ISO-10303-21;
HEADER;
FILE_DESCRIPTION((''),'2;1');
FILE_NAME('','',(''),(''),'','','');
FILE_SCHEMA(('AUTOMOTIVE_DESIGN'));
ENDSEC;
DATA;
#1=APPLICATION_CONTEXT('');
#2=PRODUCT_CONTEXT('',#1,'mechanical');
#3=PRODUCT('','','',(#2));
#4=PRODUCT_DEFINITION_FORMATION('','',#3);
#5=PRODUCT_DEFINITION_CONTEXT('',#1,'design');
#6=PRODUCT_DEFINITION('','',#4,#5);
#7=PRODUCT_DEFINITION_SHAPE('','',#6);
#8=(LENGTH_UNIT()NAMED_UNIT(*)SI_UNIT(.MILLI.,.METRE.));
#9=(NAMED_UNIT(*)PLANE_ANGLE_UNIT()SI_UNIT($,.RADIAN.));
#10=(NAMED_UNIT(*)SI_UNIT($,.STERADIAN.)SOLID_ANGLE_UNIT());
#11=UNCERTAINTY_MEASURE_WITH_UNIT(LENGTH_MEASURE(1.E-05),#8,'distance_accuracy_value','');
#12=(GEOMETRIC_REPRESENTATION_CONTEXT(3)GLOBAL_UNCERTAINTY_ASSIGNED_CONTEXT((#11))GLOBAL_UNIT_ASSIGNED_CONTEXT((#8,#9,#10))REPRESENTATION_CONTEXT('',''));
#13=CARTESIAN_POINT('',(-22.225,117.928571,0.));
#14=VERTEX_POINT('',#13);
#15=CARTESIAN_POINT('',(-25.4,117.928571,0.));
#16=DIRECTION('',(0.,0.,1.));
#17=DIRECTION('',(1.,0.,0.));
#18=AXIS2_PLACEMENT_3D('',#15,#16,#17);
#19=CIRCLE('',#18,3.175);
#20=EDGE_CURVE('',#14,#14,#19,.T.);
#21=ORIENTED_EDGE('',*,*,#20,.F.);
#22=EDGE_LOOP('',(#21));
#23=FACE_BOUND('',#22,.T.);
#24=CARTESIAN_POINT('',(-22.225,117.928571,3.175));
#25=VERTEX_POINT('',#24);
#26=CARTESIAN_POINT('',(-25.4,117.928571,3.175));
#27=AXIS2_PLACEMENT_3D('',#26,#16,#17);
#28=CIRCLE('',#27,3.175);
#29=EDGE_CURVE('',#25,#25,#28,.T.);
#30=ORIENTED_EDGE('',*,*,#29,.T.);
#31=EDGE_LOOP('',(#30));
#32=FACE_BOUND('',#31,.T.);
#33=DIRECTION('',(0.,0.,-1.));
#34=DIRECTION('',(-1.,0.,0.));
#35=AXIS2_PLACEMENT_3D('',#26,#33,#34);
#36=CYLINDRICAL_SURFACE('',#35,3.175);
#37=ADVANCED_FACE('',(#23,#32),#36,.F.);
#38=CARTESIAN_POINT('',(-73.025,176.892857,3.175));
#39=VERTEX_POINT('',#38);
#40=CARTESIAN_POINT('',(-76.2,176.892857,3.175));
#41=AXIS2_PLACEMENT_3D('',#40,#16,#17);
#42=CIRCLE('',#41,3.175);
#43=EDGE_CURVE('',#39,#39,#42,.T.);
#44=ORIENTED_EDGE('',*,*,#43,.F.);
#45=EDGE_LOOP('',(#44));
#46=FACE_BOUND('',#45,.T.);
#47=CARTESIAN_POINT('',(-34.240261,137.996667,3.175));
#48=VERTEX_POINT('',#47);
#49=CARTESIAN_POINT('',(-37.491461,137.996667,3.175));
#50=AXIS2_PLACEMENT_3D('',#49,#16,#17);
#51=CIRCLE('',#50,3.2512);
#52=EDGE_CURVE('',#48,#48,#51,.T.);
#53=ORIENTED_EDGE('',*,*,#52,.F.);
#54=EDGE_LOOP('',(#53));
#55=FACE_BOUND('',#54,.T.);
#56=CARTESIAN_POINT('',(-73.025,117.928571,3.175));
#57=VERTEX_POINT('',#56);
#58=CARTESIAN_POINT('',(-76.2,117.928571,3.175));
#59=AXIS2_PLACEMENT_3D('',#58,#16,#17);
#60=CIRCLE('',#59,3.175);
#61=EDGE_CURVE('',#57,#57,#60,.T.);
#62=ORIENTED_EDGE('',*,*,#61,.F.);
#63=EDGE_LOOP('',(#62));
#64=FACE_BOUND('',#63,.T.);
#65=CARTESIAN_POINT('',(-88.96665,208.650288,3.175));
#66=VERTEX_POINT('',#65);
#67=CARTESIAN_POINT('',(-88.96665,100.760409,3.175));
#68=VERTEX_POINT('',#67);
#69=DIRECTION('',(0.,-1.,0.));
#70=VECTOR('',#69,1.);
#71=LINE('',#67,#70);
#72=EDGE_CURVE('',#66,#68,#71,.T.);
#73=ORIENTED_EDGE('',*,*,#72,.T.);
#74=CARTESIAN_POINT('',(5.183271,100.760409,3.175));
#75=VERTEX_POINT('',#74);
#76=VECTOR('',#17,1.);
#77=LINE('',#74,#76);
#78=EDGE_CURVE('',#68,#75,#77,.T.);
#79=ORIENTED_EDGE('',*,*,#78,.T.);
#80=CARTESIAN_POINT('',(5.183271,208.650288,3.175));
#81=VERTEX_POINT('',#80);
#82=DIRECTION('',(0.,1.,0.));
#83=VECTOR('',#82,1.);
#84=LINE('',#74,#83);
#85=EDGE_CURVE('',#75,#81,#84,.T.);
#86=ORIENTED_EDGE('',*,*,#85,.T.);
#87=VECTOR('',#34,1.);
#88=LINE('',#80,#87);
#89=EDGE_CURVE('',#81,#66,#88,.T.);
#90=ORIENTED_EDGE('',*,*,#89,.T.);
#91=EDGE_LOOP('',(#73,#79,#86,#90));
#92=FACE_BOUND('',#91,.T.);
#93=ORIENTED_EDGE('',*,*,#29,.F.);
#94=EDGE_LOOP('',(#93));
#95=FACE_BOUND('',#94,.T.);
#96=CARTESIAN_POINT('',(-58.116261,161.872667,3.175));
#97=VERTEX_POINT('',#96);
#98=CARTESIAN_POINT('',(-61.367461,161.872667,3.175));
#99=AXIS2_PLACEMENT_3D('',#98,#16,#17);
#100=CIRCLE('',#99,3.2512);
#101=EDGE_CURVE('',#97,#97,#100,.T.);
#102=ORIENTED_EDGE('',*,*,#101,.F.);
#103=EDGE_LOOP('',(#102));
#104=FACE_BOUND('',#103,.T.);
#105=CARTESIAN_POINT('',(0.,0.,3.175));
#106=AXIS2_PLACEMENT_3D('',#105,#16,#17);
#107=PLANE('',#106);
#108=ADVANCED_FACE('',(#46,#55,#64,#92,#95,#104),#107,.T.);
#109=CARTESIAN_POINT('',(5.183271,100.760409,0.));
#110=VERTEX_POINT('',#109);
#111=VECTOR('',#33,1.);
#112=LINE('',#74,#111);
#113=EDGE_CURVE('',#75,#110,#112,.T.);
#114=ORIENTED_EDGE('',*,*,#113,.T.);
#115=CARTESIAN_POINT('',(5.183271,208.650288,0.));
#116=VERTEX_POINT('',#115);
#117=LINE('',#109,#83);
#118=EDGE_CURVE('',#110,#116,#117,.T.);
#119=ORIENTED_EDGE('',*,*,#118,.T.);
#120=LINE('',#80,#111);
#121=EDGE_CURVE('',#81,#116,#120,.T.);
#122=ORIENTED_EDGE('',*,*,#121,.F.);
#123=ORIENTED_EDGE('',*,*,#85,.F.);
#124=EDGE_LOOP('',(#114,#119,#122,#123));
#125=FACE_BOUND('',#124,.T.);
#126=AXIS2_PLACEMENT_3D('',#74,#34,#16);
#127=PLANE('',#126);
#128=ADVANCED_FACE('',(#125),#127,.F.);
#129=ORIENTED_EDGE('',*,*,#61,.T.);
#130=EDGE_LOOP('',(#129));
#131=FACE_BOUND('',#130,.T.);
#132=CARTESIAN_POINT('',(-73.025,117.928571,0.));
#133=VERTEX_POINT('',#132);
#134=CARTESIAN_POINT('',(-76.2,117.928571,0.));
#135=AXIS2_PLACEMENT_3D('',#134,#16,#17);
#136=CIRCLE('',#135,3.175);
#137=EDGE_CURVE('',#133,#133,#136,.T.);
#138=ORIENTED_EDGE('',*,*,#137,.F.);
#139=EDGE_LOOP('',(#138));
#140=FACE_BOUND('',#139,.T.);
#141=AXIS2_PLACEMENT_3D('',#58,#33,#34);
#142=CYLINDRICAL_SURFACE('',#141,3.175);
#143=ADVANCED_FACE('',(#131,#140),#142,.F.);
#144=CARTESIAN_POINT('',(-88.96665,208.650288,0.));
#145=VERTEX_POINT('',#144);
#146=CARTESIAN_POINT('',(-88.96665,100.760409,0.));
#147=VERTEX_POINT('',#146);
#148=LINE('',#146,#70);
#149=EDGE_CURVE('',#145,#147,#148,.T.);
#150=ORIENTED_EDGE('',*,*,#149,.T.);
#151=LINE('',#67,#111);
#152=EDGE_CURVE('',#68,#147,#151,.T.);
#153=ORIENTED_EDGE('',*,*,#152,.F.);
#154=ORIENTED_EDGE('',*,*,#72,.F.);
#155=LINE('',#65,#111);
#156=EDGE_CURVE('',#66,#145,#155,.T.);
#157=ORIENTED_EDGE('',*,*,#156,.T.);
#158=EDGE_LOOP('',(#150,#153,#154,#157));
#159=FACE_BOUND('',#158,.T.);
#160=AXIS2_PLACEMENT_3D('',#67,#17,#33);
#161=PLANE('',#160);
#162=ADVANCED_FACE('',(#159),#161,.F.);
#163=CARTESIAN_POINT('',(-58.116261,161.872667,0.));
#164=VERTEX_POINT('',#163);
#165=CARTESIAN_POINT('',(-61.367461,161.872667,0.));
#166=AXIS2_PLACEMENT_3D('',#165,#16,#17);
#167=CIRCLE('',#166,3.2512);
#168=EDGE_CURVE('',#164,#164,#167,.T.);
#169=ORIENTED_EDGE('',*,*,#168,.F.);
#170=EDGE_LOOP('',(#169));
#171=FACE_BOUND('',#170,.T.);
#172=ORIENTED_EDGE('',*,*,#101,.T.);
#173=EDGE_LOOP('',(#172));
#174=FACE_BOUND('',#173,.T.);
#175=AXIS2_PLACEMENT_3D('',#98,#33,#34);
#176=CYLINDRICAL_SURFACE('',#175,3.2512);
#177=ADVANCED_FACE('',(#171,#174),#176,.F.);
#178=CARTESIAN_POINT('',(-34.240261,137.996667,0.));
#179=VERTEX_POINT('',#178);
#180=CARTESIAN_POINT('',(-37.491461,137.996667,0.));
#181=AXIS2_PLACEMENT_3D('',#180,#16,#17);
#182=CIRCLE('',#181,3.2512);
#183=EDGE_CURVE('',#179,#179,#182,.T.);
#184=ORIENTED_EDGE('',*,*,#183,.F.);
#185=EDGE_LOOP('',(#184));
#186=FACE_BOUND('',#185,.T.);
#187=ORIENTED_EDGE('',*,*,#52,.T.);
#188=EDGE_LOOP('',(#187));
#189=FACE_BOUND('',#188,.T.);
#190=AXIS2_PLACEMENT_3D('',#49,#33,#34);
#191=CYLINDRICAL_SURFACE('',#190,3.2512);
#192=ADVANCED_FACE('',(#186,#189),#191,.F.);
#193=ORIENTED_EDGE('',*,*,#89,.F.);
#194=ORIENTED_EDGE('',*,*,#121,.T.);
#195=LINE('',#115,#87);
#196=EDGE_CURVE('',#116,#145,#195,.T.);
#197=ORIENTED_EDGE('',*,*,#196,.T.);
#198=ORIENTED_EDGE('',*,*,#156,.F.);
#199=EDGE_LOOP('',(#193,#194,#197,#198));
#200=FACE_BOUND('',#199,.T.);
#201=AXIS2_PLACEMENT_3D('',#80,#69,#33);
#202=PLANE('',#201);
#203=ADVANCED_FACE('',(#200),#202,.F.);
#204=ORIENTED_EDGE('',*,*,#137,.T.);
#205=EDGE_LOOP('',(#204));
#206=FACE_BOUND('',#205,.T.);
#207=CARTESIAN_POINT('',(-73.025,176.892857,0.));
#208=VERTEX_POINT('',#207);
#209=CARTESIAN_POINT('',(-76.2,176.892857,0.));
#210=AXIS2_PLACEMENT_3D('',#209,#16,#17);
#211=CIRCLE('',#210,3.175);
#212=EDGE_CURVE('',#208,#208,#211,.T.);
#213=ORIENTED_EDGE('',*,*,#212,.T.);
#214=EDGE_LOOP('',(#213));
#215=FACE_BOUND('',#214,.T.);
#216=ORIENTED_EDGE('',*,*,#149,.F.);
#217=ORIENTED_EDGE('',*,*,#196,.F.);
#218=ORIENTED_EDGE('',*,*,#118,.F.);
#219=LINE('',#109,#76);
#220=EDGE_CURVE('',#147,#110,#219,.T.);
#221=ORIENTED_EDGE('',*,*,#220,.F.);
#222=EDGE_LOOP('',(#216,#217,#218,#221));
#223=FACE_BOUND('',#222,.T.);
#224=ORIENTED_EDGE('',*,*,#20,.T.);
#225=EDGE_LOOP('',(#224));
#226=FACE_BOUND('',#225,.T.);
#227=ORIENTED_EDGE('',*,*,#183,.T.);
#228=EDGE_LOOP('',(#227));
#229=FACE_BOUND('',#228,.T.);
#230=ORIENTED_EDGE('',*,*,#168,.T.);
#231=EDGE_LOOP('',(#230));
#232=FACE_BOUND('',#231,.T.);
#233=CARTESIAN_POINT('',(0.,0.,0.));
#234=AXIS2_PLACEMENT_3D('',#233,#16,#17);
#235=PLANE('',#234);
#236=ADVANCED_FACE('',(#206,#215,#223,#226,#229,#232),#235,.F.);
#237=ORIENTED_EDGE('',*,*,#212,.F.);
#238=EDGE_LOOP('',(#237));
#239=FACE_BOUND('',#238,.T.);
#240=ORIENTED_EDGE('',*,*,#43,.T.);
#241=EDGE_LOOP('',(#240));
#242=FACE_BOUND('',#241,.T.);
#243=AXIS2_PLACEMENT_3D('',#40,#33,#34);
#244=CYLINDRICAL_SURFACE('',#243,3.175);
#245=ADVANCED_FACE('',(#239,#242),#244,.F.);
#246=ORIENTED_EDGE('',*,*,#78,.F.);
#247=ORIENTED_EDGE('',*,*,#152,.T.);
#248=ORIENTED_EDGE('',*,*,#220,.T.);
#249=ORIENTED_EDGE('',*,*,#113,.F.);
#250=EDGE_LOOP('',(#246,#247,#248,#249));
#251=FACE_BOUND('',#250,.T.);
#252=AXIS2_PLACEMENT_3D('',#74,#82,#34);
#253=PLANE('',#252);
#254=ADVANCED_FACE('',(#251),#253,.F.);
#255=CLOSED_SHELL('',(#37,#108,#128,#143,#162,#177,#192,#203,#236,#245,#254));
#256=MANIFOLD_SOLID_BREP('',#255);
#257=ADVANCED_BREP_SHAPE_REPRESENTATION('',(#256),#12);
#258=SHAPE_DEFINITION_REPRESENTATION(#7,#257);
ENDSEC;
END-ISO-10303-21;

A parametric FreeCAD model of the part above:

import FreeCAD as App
import Part
import Sketcher
from FreeCAD import Vector
Q = App.Units.Quantity

doc = App.newDocument("Part")
body = doc.addObject("PartDesign::Body", "Body")

# Sketch on XY plane
sketch1 = body.newObject("Sketcher::SketchObject", "Sketch")
sketch1.AttachmentSupport = (doc.getObject("XY_Plane"), [""])
sketch1.MapMode = "FlatFace"
sketch1.addGeometry(Part.LineSegment(Vector(-89, 208.7, 0), Vector(-89, 100.8, 0)), False)
sketch1.addGeometry(Part.LineSegment(Vector(-89, 100.8, 0), Vector(5.2, 100.8, 0)), False)
sketch1.addGeometry(Part.LineSegment(Vector(5.2, 100.8, 0), Vector(5.2, 208.7, 0)), False)
sketch1.addGeometry(Part.LineSegment(Vector(5.2, 208.7, 0), Vector(-89, 208.7, 0)), False)
sketch1.addGeometry(Part.Circle(Vector(-76.2, 117.9, 0), Vector(0, 0, 1), 3.2), False)
sketch1.addGeometry(Part.Circle(Vector(-25.4, 117.9, 0), Vector(0, 0, 1), 3.2), False)
sketch1.addGeometry(Part.Circle(Vector(-37.5, 138, 0), Vector(0, 0, 1), 3.3), False)
sketch1.addGeometry(Part.Circle(Vector(-61.4, 161.9, 0), Vector(0, 0, 1), 3.3), False)
sketch1.addGeometry(Part.Circle(Vector(-76.2, 176.9, 0), Vector(0, 0, 1), 3.2), False)
sketch1.addConstraint(Sketcher.Constraint("Coincident", 0, 2, 1, 1))
sketch1.addConstraint(Sketcher.Constraint("Coincident", 1, 2, 2, 1))
sketch1.addConstraint(Sketcher.Constraint("Coincident", 2, 2, 3, 1))
sketch1.addConstraint(Sketcher.Constraint("Coincident", 3, 2, 0, 1))
sketch1.addConstraint(Sketcher.Constraint("Vertical", 0))
sketch1.addConstraint(Sketcher.Constraint("Horizontal", 1))
sketch1.addConstraint(Sketcher.Constraint("Vertical", 2))
sketch1.addConstraint(Sketcher.Constraint("Horizontal", 3))
sketch1.addConstraint(Sketcher.Constraint("Equal", 4, 5))
sketch1.addConstraint(Sketcher.Constraint("Equal", 6, 7))
sketch1.addConstraint(Sketcher.Constraint("Equal", 5, 8))
sketch1.addConstraint(Sketcher.Constraint("Horizontal", 4, 3, 5, 3))
sketch1.addConstraint(Sketcher.Constraint("Vertical", 4, 3, 8, 3))
sketch1.addConstraint(Sketcher.Constraint("Diameter", 4, Q("0.25 in")))
sketch1.addConstraint(Sketcher.Constraint("Diameter", 6, Q("0.256 in")))
sketch1.addConstraint(Sketcher.Constraint("DistanceX", 4, 3, -1, 1, Q("3 in")))
sketch1.addConstraint(Sketcher.Constraint("DistanceX", 5, 3, -1, 1, Q("1 in")))
sketch1.addConstraint(Sketcher.Constraint("DistanceX", 7, 3, 6, 3, Q("0.94 in")))
sketch1.addConstraint(Sketcher.Constraint("DistanceY", 6, 3, 7, 3, Q("0.94 in")))
sketch1.addConstraint(Sketcher.Constraint("DistanceX", 1, 1, 1, 2, 94.149921))
sketch1.addConstraint(Sketcher.Constraint("DistanceY", 0, 2, 0, 1, 107.889879))
sketch1.addConstraint(Sketcher.Constraint("DistanceY", -1, 1, 4, 3, 117.928571))
sketch1.addConstraint(Sketcher.Constraint("DistanceX", 6, 3, -1, 1, 37.491461))
sketch1.addConstraint(Sketcher.Constraint("DistanceX", 0, 2, -1, 1, 88.96665))
sketch1.addConstraint(Sketcher.Constraint("DistanceY", -1, 1, 0, 2, 100.760409))
sketch1.addConstraint(Sketcher.Constraint("DistanceY", 7, 3, 8, 3, 15.02019))
sketch1.addConstraint(Sketcher.Constraint("DistanceY", 0, 2, 6, 3, 37.236258))
pad1 = body.newObject("PartDesign::Pad", "Pad")
pad1.Profile = sketch1
pad1.Length = Q("0.125 in")

doc.recompute()
